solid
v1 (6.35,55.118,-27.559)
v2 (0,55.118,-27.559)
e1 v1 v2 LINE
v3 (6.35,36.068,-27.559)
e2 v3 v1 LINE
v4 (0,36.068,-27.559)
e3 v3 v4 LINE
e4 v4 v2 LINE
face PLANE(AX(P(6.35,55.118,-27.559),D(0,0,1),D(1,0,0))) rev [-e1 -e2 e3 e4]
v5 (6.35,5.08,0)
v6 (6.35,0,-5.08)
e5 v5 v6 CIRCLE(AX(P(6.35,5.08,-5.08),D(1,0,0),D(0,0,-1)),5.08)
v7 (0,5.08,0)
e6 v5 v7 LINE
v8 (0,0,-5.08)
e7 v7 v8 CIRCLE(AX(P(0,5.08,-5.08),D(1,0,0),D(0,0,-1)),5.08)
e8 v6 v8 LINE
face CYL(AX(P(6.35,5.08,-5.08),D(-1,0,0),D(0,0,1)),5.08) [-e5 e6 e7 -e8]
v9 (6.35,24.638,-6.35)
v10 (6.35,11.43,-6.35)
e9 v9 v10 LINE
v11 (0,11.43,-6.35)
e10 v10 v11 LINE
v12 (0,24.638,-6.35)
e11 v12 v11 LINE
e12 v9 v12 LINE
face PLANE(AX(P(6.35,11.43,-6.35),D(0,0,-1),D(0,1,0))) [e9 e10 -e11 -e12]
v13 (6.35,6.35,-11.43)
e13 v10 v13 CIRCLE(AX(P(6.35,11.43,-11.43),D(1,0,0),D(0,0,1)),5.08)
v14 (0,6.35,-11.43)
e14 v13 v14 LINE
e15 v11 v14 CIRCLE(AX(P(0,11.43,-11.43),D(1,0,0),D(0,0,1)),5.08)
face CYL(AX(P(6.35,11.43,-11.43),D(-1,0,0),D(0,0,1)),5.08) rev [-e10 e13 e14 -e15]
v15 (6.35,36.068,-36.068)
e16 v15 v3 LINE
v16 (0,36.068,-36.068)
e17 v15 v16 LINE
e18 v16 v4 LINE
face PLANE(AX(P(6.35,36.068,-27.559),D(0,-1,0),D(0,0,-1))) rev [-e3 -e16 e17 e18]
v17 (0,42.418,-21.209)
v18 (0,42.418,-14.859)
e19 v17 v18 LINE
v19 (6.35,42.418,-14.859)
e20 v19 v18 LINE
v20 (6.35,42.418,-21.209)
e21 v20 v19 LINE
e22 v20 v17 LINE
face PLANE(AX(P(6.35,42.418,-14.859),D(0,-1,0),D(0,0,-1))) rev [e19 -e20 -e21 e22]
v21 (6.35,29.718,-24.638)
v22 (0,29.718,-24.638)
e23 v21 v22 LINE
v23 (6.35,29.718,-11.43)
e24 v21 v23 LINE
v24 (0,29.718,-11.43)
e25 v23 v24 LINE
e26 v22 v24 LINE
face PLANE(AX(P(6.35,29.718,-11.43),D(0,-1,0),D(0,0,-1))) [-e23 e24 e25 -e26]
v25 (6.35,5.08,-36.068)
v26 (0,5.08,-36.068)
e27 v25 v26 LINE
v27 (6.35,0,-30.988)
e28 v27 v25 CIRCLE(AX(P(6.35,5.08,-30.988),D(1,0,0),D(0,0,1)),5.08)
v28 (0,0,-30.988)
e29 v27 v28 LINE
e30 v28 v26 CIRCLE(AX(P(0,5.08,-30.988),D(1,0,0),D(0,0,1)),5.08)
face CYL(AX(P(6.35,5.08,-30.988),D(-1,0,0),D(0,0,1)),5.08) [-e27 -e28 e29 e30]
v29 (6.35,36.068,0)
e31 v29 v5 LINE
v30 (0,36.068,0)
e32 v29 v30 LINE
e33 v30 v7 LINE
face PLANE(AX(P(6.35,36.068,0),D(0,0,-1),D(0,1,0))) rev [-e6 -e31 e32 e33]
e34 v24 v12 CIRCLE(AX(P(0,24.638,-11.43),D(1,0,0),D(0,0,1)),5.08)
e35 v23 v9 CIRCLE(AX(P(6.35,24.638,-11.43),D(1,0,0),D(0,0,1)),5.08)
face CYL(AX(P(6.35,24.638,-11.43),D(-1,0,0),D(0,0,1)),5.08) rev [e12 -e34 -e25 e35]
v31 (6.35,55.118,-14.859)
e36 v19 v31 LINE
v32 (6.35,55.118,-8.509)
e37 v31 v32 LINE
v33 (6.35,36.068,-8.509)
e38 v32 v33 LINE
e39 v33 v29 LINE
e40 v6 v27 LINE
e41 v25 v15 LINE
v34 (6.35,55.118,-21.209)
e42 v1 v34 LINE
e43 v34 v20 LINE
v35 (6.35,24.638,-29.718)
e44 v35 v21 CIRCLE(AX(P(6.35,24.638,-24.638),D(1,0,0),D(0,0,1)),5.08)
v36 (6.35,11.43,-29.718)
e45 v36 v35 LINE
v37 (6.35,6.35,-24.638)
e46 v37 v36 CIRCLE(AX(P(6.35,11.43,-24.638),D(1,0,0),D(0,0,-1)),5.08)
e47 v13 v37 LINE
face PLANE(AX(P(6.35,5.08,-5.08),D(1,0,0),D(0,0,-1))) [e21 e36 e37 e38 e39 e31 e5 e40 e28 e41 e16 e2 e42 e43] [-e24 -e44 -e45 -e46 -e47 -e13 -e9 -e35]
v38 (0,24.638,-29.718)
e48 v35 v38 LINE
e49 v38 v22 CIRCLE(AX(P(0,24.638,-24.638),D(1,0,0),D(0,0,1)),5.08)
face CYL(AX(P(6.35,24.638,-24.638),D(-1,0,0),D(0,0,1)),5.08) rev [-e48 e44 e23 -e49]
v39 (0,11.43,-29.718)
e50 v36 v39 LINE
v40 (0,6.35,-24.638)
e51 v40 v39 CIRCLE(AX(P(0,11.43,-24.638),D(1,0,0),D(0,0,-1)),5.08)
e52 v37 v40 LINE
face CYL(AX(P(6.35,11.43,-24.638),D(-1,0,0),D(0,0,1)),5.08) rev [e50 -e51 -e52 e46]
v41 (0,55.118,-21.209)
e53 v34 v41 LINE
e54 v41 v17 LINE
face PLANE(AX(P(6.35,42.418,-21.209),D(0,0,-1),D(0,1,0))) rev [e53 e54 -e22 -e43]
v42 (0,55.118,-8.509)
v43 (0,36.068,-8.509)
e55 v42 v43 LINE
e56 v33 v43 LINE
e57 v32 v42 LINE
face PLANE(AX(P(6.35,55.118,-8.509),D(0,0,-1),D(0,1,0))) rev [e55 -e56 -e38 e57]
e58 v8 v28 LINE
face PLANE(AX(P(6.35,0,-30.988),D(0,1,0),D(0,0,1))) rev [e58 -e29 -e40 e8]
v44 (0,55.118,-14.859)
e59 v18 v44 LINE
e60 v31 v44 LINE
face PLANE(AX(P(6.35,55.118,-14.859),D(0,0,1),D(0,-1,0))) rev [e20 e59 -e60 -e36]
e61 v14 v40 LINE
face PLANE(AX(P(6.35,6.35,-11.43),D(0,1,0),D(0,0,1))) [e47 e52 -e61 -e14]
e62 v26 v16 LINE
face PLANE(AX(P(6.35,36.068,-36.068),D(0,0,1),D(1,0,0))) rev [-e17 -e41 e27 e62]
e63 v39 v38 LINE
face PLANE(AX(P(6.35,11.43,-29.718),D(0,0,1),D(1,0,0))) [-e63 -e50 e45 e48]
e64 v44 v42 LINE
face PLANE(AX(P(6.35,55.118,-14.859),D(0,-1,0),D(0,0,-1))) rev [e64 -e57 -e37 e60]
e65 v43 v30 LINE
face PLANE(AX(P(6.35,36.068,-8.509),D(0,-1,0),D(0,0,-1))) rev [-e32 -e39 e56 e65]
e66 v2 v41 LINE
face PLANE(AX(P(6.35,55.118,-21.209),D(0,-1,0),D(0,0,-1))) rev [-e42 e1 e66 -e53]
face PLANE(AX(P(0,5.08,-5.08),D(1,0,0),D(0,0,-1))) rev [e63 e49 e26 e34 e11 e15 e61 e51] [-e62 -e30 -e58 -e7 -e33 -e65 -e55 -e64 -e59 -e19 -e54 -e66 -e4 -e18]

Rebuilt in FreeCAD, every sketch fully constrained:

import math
import FreeCAD as App
import Part
import Sketcher
from FreeCAD import Vector
Q = App.Units.Quantity

doc = App.newDocument("Part")
body = doc.addObject("PartDesign::Body", "Body")

sketch1 = body.newObject("Sketcher::SketchObject", "Sketch")
sketch1.AttachmentSupport = (doc.getObject("YZ_Plane"), [""])
sketch1.MapMode = "FlatFace"
sketch1.addGeometry(Part.LineSegment(Vector(42, -15, 0), Vector(55, -15, 0)), False)
sketch1.addGeometry(Part.LineSegment(Vector(55, -15, 0), Vector(55, -9, 0)), False)
sketch1.addGeometry(Part.LineSegment(Vector(55, -9, 0), Vector(36, -9, 0)), False)
sketch1.addGeometry(Part.LineSegment(Vector(36, -9, 0), Vector(36, 0, 0)), False)
sketch1.addGeometry(Part.LineSegment(Vector(36, 0, 0), Vector(5, 0, 0)), False)
sketch1.addGeometry(Part.ArcOfCircle(Part.Circle(Vector(5, -5, 0), Vector(0, 0, 1), 5), math.radians(90), math.radians(180)), False)
sketch1.addGeometry(Part.LineSegment(Vector(0, -5, 0), Vector(0, -31, 0)), False)
sketch1.addGeometry(Part.ArcOfCircle(Part.Circle(Vector(5, -31, 0), Vector(0, 0, 1), 5), math.radians(-180), math.radians(-90)), False)
sketch1.addGeometry(Part.LineSegment(Vector(5, -36, 0), Vector(36, -36, 0)), False)
sketch1.addGeometry(Part.LineSegment(Vector(36, -36, 0), Vector(36, -28, 0)), False)
sketch1.addGeometry(Part.LineSegment(Vector(36, -28, 0), Vector(55, -28, 0)), False)
sketch1.addGeometry(Part.LineSegment(Vector(55, -28, 0), Vector(55, -21, 0)), False)
sketch1.addGeometry(Part.LineSegment(Vector(55, -21, 0), Vector(42, -21, 0)), False)
sketch1.addGeometry(Part.LineSegment(Vector(42, -21, 0), Vector(42, -15, 0)), False)
sketch1.addGeometry(Part.ArcOfCircle(Part.Circle(Vector(11, -11, 0), Vector(0, 0, 1), 5), math.radians(90), math.radians(180)), False)
sketch1.addGeometry(Part.LineSegment(Vector(11, -6, 0), Vector(25, -6, 0)), False)
sketch1.addGeometry(Part.ArcOfCircle(Part.Circle(Vector(25, -11, 0), Vector(0, 0, 1), 5), math.radians(0), math.radians(90)), False)
sketch1.addGeometry(Part.LineSegment(Vector(30, -11, 0), Vector(30, -25, 0)), False)
sketch1.addGeometry(Part.ArcOfCircle(Part.Circle(Vector(25, -25, 0), Vector(0, 0, 1), 5), math.radians(-90), math.radians(0)), False)
sketch1.addGeometry(Part.LineSegment(Vector(25, -30, 0), Vector(11, -30, 0)), False)
sketch1.addGeometry(Part.ArcOfCircle(Part.Circle(Vector(11, -25, 0), Vector(0, 0, 1), 5), math.radians(-180), math.radians(-90)), False)
sketch1.addGeometry(Part.LineSegment(Vector(6, -25, 0), Vector(6, -11, 0)), False)
sketch1.addConstraint(Sketcher.Constraint("Coincident", 0, 2, 1, 1))
sketch1.addConstraint(Sketcher.Constraint("Coincident", 1, 2, 2, 1))
sketch1.addConstraint(Sketcher.Constraint("Coincident", 2, 2, 3, 1))
sketch1.addConstraint(Sketcher.Constraint("Coincident", 3, 2, 4, 1))
sketch1.addConstraint(Sketcher.Constraint("Tangent", 4, 2, 5, 1))
sketch1.addConstraint(Sketcher.Constraint("Tangent", 5, 2, 6, 1))
sketch1.addConstraint(Sketcher.Constraint("Tangent", 6, 2, 7, 1))
sketch1.addConstraint(Sketcher.Constraint("Tangent", 7, 2, 8, 1))
sketch1.addConstraint(Sketcher.Constraint("Coincident", 8, 2, 9, 1))
sketch1.addConstraint(Sketcher.Constraint("Coincident", 9, 2, 10, 1))
sketch1.addConstraint(Sketcher.Constraint("Coincident", 10, 2, 11, 1))
sketch1.addConstraint(Sketcher.Constraint("Coincident", 11, 2, 12, 1))
sketch1.addConstraint(Sketcher.Constraint("Coincident", 12, 2, 13, 1))
sketch1.addConstraint(Sketcher.Constraint("Coincident", 13, 2, 0, 1))
sketch1.addConstraint(Sketcher.Constraint("Tangent", 14, 1, 15, 1))
sketch1.addConstraint(Sketcher.Constraint("Tangent", 15, 2, 16, 2))
sketch1.addConstraint(Sketcher.Constraint("Tangent", 16, 1, 17, 1))
sketch1.addConstraint(Sketcher.Constraint("Tangent", 17, 2, 18, 2))
sketch1.addConstraint(Sketcher.Constraint("Tangent", 18, 1, 19, 1))
sketch1.addConstraint(Sketcher.Constraint("Tangent", 19, 2, 20, 2))
sketch1.addConstraint(Sketcher.Constraint("Tangent", 20, 1, 21, 1))
sketch1.addConstraint(Sketcher.Constraint("Tangent", 21, 2, 14, 2))
sketch1.addConstraint(Sketcher.Constraint("Horizontal", 0))
sketch1.addConstraint(Sketcher.Constraint("Vertical", 1))
sketch1.addConstraint(Sketcher.Constraint("Horizontal", 2))
sketch1.addConstraint(Sketcher.Constraint("Vertical", 3))
sketch1.addConstraint(Sketcher.Constraint("Horizontal", 4))
sketch1.addConstraint(Sketcher.Constraint("Vertical", 6))
sketch1.addConstraint(Sketcher.Constraint("Horizontal", 8))
sketch1.addConstraint(Sketcher.Constraint("Vertical", 9))
sketch1.addConstraint(Sketcher.Constraint("Horizontal", 10))
sketch1.addConstraint(Sketcher.Constraint("Vertical", 11))
sketch1.addConstraint(Sketcher.Constraint("Horizontal", 12))
sketch1.addConstraint(Sketcher.Constraint("Vertical", 13))
sketch1.addConstraint(Sketcher.Constraint("Horizontal", 15))
sketch1.addConstraint(Sketcher.Constraint("Vertical", 17))
sketch1.addConstraint(Sketcher.Constraint("Horizontal", 19))
sketch1.addConstraint(Sketcher.Constraint("Vertical", 21))
sketch1.addConstraint(Sketcher.Constraint("Equal", 5, 7))
sketch1.addConstraint(Sketcher.Constraint("Equal", 7, 14))
sketch1.addConstraint(Sketcher.Constraint("Equal", 14, 16))
sketch1.addConstraint(Sketcher.Constraint("Equal", 16, 18))
sketch1.addConstraint(Sketcher.Constraint("Equal", 18, 20))
sketch1.addConstraint(Sketcher.Constraint("PointOnObject", 3, 2, -1))
sketch1.addConstraint(Sketcher.Constraint("PointOnObject", 5, 2, -2))
sketch1.addConstraint(Sketcher.Constraint("Vertical", 3, 2, 8, 2))
sketch1.addConstraint(Sketcher.Constraint("Vertical", 1, 2, 10, 2))
sketch1.addConstraint(Sketcher.Constraint("Equal", 3, 9))
sketch1.addConstraint(Sketcher.Constraint("Equal", 1, 11))
sketch1.addConstraint(Sketcher.Constraint("Equal", 11, 13))
sketch1.addConstraint(Sketcher.Constraint("Equal", 19, 17))
sketch1.addConstraint(Sketcher.Constraint("Radius", 5, Q("0.2 in")))
sketch1.addConstraint(Sketcher.Constraint("DistanceX", 0, 1, 0, 2, Q("0.5 in")))
sketch1.addConstraint(Sketcher.Constraint("DistanceX", 2, 2, 2, 1, Q("0.75 in")))
sketch1.addConstraint(Sketcher.Constraint("DistanceX", 4, 2, 4, 1, Q("1.22 in")))
sketch1.addConstraint(Sketcher.Constraint("DistanceX", 15, 1, 15, 2, Q("0.52 in")))
sketch1.addConstraint(Sketcher.Constraint("DistanceY", 1, 1, 1, 2, Q("0.25 in")))
sketch1.addConstraint(Sketcher.Constraint("DistanceY", 6, 2, 6, 1, Q("1.02 in")))
sketch1.addConstraint(Sketcher.Constraint("DistanceX", 16, 3, 0, 2, Q("1.2 in")))
sketch1.addConstraint(Sketcher.Constraint("DistanceY", 14, 3, -1, 1, Q("0.45 in")))
pad1 = body.newObject("PartDesign::Pad", "Pad")
pad1.Profile = sketch1
pad1.Length = Q("0.25 in")

doc.recompute()
